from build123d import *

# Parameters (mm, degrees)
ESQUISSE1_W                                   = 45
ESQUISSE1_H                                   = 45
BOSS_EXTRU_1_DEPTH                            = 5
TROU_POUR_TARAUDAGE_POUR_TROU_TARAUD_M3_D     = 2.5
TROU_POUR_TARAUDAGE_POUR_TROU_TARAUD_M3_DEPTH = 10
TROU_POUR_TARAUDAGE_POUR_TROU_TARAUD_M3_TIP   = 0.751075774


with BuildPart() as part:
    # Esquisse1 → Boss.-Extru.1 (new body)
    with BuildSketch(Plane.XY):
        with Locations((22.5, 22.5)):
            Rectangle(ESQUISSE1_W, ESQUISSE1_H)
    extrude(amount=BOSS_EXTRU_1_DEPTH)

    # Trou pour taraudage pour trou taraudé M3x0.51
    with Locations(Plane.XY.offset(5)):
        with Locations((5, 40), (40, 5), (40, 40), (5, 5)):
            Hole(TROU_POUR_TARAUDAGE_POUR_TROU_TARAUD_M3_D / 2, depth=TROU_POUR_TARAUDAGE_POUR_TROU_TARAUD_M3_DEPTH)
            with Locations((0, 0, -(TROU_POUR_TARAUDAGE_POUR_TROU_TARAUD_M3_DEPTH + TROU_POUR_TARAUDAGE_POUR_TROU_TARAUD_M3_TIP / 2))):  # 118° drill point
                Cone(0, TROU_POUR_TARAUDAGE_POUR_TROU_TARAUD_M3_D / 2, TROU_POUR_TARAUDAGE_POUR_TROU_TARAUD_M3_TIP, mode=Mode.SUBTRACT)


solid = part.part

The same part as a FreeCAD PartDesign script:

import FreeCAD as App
import Part
import Sketcher
from FreeCAD import Vector
Q = App.Units.Quantity


def add_polygon(sketch, points):
    """Adds a closed chain of lines whose ends are joined by coincident constraints."""
    first, n = sketch.GeometryCount, len(points)
    for a, b in zip(points, points[1:] + points[:1]):
        sketch.addGeometry(Part.LineSegment(App.Vector(*a, 0), App.Vector(*b, 0)), False)
    for i in range(n):
        sketch.addConstraint(Sketcher.Constraint("Coincident", first + i, 2, first + (i + 1) % n, 1))

doc = App.newDocument("Part")
body = doc.addObject("PartDesign::Body", "Body")

sketch1 = body.newObject("Sketcher::SketchObject", "Sketch")
sketch1.AttachmentSupport = (doc.getObject("XY_Plane"), [""])
sketch1.MapMode = "FlatFace"
add_polygon(sketch1, [(0, 45), (0, 0), (45, 0), (45, 45)])
sketch1.addConstraint([
    Sketcher.Constraint("Vertical", 0),
    Sketcher.Constraint("Horizontal", 1),
    Sketcher.Constraint("Vertical", 2),
    Sketcher.Constraint("Horizontal", 3),
    Sketcher.Constraint("Coincident", 0, 2, -1, 1),
    Sketcher.Constraint("Equal", 3, 0),
    Sketcher.Constraint("DistanceX", 1, 1, 1, 2, Q("45 mm")),
])
pad1 = body.newObject("PartDesign::Pad", "Pad")
pad1.Profile = sketch1
pad1.Length = 5

sketch2 = body.newObject("Sketcher::SketchObject", "Sketch001")
sketch2.AttachmentSupport = (doc.getObject("XY_Plane"), [""])
sketch2.MapMode = "FlatFace"
sketch2.AttachmentOffset = App.Placement(Vector(0, 0, 5), App.Rotation())
sketch2.addGeometry([
    Part.Circle(Vector(5, 40, 0), Vector(0, 0, 1), 1.25),
    Part.Circle(Vector(40, 5, 0), Vector(0, 0, 1), 1.25),
    Part.Circle(Vector(40, 40, 0), Vector(0, 0, 1), 1.25),
    Part.Circle(Vector(5, 5, 0), Vector(0, 0, 1), 1.25),
], False)
sketch2.addConstraint([
    Sketcher.Constraint("Equal", 0, 1),
    Sketcher.Constraint("Equal", 1, 2),
    Sketcher.Constraint("Equal", 2, 3),
    Sketcher.Constraint("Horizontal", 0, 3, 2, 3),
    Sketcher.Constraint("Horizontal", 1, 3, 3, 3),
    Sketcher.Constraint("Vertical", 1, 3, 2, 3),
    Sketcher.Constraint("Vertical", 0, 3, 3, 3),
    Sketcher.Constraint("Diameter", 0, Q("2.5 mm")),
    Sketcher.Constraint("DistanceX", -1, 1, 0, 3, Q("5 mm")),
    Sketcher.Constraint("DistanceY", -1, 1, 0, 3, Q("40 mm")),
    Sketcher.Constraint("DistanceX", -1, 1, 1, 3, Q("40 mm")),
    Sketcher.Constraint("DistanceY", -1, 1, 1, 3, Q("5 mm")),
])
doc.recompute()
hole = body.newObject("PartDesign::Hole", "Hole")
hole.Profile = sketch2
hole.ThreadType = "None"
hole.Diameter = 2.5
hole.DepthType = "Dimension"
hole.Depth = 10
hole.DrillPoint = "Angled"
hole.DrillPointAngle = 118

doc.recompute()
